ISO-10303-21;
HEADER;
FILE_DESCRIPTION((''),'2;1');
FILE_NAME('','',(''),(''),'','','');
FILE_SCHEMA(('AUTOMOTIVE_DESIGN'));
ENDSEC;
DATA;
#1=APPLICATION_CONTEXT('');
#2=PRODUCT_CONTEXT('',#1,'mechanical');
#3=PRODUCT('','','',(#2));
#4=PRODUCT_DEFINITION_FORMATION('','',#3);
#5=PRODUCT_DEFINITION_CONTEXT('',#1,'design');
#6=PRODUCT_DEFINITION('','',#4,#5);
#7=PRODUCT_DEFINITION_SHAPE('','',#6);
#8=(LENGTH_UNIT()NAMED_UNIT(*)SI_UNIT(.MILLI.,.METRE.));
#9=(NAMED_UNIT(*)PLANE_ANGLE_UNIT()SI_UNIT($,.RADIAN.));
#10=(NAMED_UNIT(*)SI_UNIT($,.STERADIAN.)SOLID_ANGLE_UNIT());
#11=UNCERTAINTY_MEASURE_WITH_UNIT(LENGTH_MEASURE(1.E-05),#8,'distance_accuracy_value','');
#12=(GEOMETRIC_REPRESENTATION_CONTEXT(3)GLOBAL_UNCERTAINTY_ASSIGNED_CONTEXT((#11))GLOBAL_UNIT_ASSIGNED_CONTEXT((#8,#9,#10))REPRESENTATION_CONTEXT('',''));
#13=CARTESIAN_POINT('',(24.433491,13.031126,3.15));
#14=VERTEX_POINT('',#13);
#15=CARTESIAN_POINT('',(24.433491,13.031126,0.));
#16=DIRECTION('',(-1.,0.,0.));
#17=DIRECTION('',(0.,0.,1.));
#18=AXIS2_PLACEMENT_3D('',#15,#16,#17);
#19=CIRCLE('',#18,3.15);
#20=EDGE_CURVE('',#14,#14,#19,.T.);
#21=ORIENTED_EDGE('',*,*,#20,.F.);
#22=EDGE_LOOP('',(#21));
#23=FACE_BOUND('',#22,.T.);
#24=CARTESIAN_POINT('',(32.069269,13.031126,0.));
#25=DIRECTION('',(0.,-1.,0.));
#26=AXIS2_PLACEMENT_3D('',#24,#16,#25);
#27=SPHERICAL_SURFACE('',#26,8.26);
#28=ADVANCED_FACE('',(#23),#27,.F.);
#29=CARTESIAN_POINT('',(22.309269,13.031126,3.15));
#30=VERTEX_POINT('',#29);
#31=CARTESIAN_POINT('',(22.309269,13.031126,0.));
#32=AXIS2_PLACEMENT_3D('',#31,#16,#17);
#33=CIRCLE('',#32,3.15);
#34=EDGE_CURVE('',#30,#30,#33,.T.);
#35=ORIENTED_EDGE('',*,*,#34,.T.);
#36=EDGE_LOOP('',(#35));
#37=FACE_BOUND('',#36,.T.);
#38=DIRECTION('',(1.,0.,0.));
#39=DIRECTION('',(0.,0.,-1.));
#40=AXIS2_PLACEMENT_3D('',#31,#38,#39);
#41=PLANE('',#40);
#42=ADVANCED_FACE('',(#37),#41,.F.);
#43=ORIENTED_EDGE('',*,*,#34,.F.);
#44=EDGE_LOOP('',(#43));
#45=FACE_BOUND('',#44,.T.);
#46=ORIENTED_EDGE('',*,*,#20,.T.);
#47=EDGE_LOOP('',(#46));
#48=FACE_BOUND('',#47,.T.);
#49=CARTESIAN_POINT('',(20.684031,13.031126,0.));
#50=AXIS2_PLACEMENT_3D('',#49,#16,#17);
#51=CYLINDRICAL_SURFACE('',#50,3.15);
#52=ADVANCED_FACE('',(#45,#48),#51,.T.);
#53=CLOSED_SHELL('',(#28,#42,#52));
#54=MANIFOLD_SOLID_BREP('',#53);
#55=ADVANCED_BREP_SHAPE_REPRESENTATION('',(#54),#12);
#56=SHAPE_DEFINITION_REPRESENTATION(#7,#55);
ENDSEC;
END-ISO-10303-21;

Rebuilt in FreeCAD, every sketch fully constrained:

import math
import FreeCAD as App
import Part
import Sketcher

V = App.Vector

doc = App.newDocument("Part")
body = doc.addObject("PartDesign::Body", "Body")

# Sketch on XY plane
sketch1 = body.newObject("Sketcher::SketchObject", "Sketch")
sketch1.AttachmentSupport = (doc.getObject("XY_Plane"), [""])
sketch1.MapMode = "FlatFace"
sketch1.addGeometry([
    Part.LineSegment(V(22.309269, 16.181126, 0), V(22.309269, 13.031126, 0)),
    Part.LineSegment(V(22.309269, 13.031126, 0), V(23.809269, 13.031126, 0)),
    Part.ArcOfCircle(Part.Circle(V(32.069269, 13.031126, 0), V(0, 0, 1), 8.26), math.radians(157.582302), math.radians(180)),
    Part.LineSegment(V(24.433491, 16.181126, 0), V(22.309269, 16.181126, 0)),
], False)
sketch1.addGeometry(Part.LineSegment(V(22.309269, 13.031126, 0), V(32.069269, 13.031126, 0)), True)  # axis
sketch1.addConstraint([
    Sketcher.Constraint("Coincident", 0, 2, 1, 1),
    Sketcher.Constraint("Coincident", 1, 2, 2, 2),
    Sketcher.Constraint("Coincident", 2, 1, 3, 1),
    Sketcher.Constraint("Coincident", 3, 2, 0, 1),
    Sketcher.Constraint("Vertical", 0),
    Sketcher.Constraint("Horizontal", 1),
    Sketcher.Constraint("Horizontal", 3),
    Sketcher.Constraint("Horizontal", 4),
    Sketcher.Constraint("Coincident", 4, 1, 0, 2),
    Sketcher.Constraint("Coincident", 4, 2, 2, 3),
    Sketcher.Constraint("Radius", 2, 8.26),
    Sketcher.Constraint("DistanceX", 1, 1, 1, 2, 1.5),
    Sketcher.Constraint("DistanceY", 0, 2, 0, 1, 3.15),
    Sketcher.Constraint("DistanceX", -1, 1, 2, 3, 32.069269),
    Sketcher.Constraint("DistanceY", -1, 1, 2, 3, 13.031126),
])
revolution = body.newObject("PartDesign::Revolution", "Revolution")
revolution.Profile = sketch1
revolution.ReferenceAxis = (sketch1, ["Axis0"])
revolution.Angle = 360

doc.recompute()
